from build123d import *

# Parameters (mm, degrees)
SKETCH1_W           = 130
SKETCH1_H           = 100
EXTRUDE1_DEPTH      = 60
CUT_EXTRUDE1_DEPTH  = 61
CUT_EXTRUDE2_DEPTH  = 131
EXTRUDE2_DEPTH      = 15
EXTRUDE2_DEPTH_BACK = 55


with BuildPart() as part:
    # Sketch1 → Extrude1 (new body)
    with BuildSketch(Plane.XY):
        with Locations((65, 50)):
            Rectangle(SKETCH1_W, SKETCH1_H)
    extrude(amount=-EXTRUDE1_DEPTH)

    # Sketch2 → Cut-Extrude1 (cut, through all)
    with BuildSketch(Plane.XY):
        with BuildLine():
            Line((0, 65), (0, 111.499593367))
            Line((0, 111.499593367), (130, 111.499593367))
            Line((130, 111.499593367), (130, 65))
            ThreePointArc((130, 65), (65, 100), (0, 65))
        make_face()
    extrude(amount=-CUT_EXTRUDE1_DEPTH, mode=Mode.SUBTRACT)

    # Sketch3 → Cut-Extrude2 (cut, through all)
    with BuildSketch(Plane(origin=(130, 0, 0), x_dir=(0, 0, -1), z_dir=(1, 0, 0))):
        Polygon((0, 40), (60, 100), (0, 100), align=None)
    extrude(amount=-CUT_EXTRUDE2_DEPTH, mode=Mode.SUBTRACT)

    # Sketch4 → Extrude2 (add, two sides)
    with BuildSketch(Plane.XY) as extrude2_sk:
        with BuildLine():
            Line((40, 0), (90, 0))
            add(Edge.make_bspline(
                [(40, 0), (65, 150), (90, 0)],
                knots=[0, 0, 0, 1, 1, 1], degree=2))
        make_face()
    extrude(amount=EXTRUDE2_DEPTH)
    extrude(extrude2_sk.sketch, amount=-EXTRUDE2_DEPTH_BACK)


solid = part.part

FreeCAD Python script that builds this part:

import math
import FreeCAD as App
import Part
import Sketcher
from FreeCAD import Vector
Q = App.Units.Quantity

doc = App.newDocument("Part")
body = doc.addObject("PartDesign::Body", "Body")

# Sketch on XY plane
sketch1 = body.newObject("Sketcher::SketchObject", "Sketch")
sketch1.AttachmentSupport = (doc.getObject("XY_Plane"), [""])
sketch1.MapMode = "FlatFace"
sketch1.addGeometry([
    Part.LineSegment(Vector(0, 100, 0), Vector(0, 0, 0)),
    Part.LineSegment(Vector(0, 0, 0), Vector(130, 0, 0)),
    Part.LineSegment(Vector(130, 0, 0), Vector(130, 100, 0)),
    Part.LineSegment(Vector(130, 100, 0), Vector(0, 100, 0)),
], False)
sketch1.addConstraint([
    Sketcher.Constraint("Coincident", 0, 2, 1, 1),
    Sketcher.Constraint("Coincident", 1, 2, 2, 1),
    Sketcher.Constraint("Coincident", 2, 2, 3, 1),
    Sketcher.Constraint("Coincident", 3, 2, 0, 1),
    Sketcher.Constraint("Vertical", 0),
    Sketcher.Constraint("Horizontal", 1),
    Sketcher.Constraint("Vertical", 2),
    Sketcher.Constraint("Horizontal", 3),
    Sketcher.Constraint("Coincident", 0, 2, -1, 1),
    Sketcher.Constraint("DistanceX", 1, 1, 1, 2, Q("130 mm")),
    Sketcher.Constraint("DistanceY", 0, 2, 0, 1, Q("100 mm")),
])
pad1 = body.newObject("PartDesign::Pad", "Pad")
pad1.Profile = sketch1
pad1.Length = 60
pad1.Reversed = True

# Sketch on XY plane
sketch2 = body.newObject("Sketcher::SketchObject", "Sketch001")
sketch2.AttachmentSupport = (doc.getObject("XY_Plane"), [""])
sketch2.MapMode = "FlatFace"
sketch2.addGeometry([
    Part.LineSegment(Vector(0, 111, 0), Vector(0, 65, 0)),
    Part.ArcOfCircle(Part.Circle(Vector(65, 22, 0), Vector(0, 0, 1), 78), math.radians(33), math.radians(147)),
    Part.LineSegment(Vector(130, 65, 0), Vector(130, 111, 0)),
    Part.LineSegment(Vector(130, 111, 0), Vector(0, 111, 0)),
], False)
sketch2.addConstraint([
    Sketcher.Constraint("Coincident", 0, 2, 1, 2),
    Sketcher.Constraint("Coincident", 1, 1, 2, 1),
    Sketcher.Constraint("Coincident", 2, 2, 3, 1),
    Sketcher.Constraint("Coincident", 3, 2, 0, 1),
    Sketcher.Constraint("Vertical", 0),
    Sketcher.Constraint("Vertical", 2),
    Sketcher.Constraint("Horizontal", 3),
    Sketcher.Constraint("PointOnObject", 0, 2, -2),
    Sketcher.Constraint("Horizontal", 0, 2, 1, 1),
    Sketcher.Constraint("DistanceX", 3, 2, 3, 1, Q("130 mm")),
    Sketcher.Constraint("DistanceY", -1, 1, 0, 2, Q("65 mm")),
    Sketcher.Constraint("Radius", 1, Q("77.857143 mm")),
    Sketcher.Constraint("DistanceY", 0, 2, 0, 1, Q("46.499593 mm")),
])
pocket1 = body.newObject("PartDesign::Pocket", "Pocket")
pocket1.Profile = sketch2
pocket1.Type = "ThroughAll"

# Sketch on YZ plane
sketch3 = body.newObject("Sketcher::SketchObject", "Sketch002")
sketch3.AttachmentSupport = (doc.getObject("YZ_Plane"), [""])
sketch3.MapMode = "FlatFace"
sketch3.AttachmentOffset = App.Placement(Vector(0, 0, 130), App.Rotation())
sketch3.addGeometry([
    Part.LineSegment(Vector(40, 0, 0), Vector(100, -60, 0)),
    Part.LineSegment(Vector(100, -60, 0), Vector(100, 0, 0)),
    Part.LineSegment(Vector(100, 0, 0), Vector(40, 0, 0)),
], False)
sketch3.addConstraint([
    Sketcher.Constraint("Coincident", 0, 2, 1, 1),
    Sketcher.Constraint("Coincident", 1, 2, 2, 1),
    Sketcher.Constraint("Coincident", 2, 2, 0, 1),
    Sketcher.Constraint("Vertical", 1),
    Sketcher.Constraint("Horizontal", 2),
    Sketcher.Constraint("PointOnObject", 1, 2, -1),
    Sketcher.Constraint("Equal", 2, 1),
    Sketcher.Constraint("DistanceX", 2, 2, 2, 1, Q("60 mm")),
    Sketcher.Constraint("DistanceX", -1, 1, 0, 2, Q("100 mm")),
])
pocket2 = body.newObject("PartDesign::Pocket", "Pocket001")
pocket2.Profile = sketch3
pocket2.Type = "ThroughAll"

# Sketch on XY plane
sketch4 = body.newObject("Sketcher::SketchObject", "Sketch003")
sketch4.AttachmentSupport = (doc.getObject("XY_Plane"), [""])
sketch4.MapMode = "FlatFace"
sketch4.addGeometry([
    Part.LineSegment(Vector(40, 0, 0), Vector(90, 0, 0)),
    Part.BSplineCurve([Vector(40, 0, 0), Vector(65, 150, 0), Vector(90, 0, 0)], [3, 3], [0, 1], False, 2, [1, 1, 1], False),
], False)
sketch4.addConstraint([
    Sketcher.Constraint("Block", 1),
    Sketcher.Constraint("Coincident", 0, 1, 1, 1),
    Sketcher.Constraint("Coincident", 1, 2, 0, 2),
])
pad2 = body.newObject("PartDesign::Pad", "Pad001")
pad2.Profile = sketch4
pad2.Type = "TwoLengths"
pad2.Length = 15
pad2.Length2 = 55

doc.recompute()
